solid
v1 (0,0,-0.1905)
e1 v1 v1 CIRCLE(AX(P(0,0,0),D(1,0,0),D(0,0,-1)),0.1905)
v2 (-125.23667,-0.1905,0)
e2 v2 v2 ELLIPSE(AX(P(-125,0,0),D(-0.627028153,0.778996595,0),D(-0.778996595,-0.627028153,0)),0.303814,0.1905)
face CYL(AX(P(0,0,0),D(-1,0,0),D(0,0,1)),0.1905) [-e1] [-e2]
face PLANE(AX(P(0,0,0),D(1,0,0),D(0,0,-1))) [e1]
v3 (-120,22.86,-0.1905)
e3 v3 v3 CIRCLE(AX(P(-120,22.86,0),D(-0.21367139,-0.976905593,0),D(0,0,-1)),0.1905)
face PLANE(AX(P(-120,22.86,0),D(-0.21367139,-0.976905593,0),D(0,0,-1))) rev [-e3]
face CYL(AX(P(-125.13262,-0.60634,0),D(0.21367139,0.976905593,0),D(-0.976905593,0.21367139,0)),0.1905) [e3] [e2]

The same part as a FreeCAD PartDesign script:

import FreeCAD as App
import Part
import Sketcher
from FreeCAD import Vector

doc = App.newDocument("Part")
params = doc.addObject("Spreadsheet::Sheet", "Params")
for row, (alias, value) in enumerate([
    ("sketch2_width", "125 mm"),
], start=1):
    params.set(f"A{row}", alias)
    params.set(f"B{row}", "=" + value)
    params.setAlias(f"B{row}", alias)

body = doc.addObject("PartDesign::Body", "Body")

sketch1 = body.newObject("Sketcher::SketchObject", "Sketch")
sketch1.AttachmentSupport = (doc.getObject("YZ_Plane"), [""])
sketch1.MapMode = "FlatFace"
sketch1.addGeometry(Part.Circle(Vector(0, 0, 0), Vector(0, 0, 1), 0.1905), False)
sketch1.addConstraint(Sketcher.Constraint("Coincident", 0, 3, -1, 1))
sketch1.addConstraint(Sketcher.Constraint("Diameter", 0, 0.381))

sketch2 = body.newObject("Sketcher::SketchObject", "Sketch001")
sketch2.AttachmentSupport = (doc.getObject("XY_Plane"), [""])
sketch2.MapMode = "FlatFace"
sketch2.addGeometry(Part.LineSegment(Vector(0, 0, 0), Vector(-125, 0, 0)), False)
sketch2.addGeometry(Part.LineSegment(Vector(-125, 0, 0), Vector(-120, 22.86, 0)), False)
sketch2.addConstraint(Sketcher.Constraint("Coincident", 0, 2, 1, 1))
sketch2.addConstraint(Sketcher.Constraint("Horizontal", 0))
sketch2.addConstraint(Sketcher.Constraint("Coincident", 0, 1, -1, 1))
sketch2.addConstraint(Sketcher.Constraint("DistanceX", 0, 2, 0, 1, 125.0))
sketch2.addConstraint(Sketcher.Constraint("DistanceX", 1, 2, -1, 1, 120.0))
sketch2.addConstraint(Sketcher.Constraint("DistanceY", -1, 1, 1, 2, 22.86))
sketch2.setExpression("Constraints[3]", "Params.sketch2_width")
doc.recompute()

additivepipe = body.newObject("PartDesign::AdditivePipe", "AdditivePipe")
additivepipe.Profile = sketch1
additivepipe.Spine = (sketch2, ["Edge1", "Edge2"])
additivepipe.Transition = "Right corner"

doc.recompute()
